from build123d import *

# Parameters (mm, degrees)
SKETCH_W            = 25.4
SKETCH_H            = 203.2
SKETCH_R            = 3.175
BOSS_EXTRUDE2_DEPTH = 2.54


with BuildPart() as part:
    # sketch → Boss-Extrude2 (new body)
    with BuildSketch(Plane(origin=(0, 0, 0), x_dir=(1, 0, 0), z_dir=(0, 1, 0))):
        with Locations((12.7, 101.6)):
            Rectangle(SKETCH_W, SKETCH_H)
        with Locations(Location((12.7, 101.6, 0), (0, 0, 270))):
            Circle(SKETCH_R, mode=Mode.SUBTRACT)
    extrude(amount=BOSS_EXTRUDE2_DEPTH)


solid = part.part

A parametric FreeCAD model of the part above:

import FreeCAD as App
import Part
import Sketcher
from FreeCAD import Vector
Q = App.Units.Quantity

doc = App.newDocument("Part")
body = doc.addObject("PartDesign::Body", "Body")

# Sketch on XZ plane
sketch1 = body.newObject("Sketcher::SketchObject", "Sketch")
sketch1.AttachmentSupport = (doc.getObject("XZ_Plane"), [""])
sketch1.MapMode = "FlatFace"
sketch1.addGeometry([
    Part.LineSegment(Vector(0, -203.2, 0), Vector(0, 0, 0)),  # 0
    Part.LineSegment(Vector(0, 0, 0), Vector(25.4, 0, 0)),  # 1
    Part.LineSegment(Vector(25.4, 0, 0), Vector(25.4, -203.2, 0)),  # 2
    Part.LineSegment(Vector(25.4, -203.2, 0), Vector(0, -203.2, 0)),  # 3
    Part.Circle(Vector(12.7, -101.6, 0), Vector(0, 0, 1), 3.2),  # 4
], False)
sketch1.addConstraint([
    Sketcher.Constraint("Coincident", 0, 2, 1, 1),
    Sketcher.Constraint("Coincident", 1, 2, 2, 1),
    Sketcher.Constraint("Coincident", 2, 2, 3, 1),
    Sketcher.Constraint("Coincident", 3, 2, 0, 1),
    Sketcher.Constraint("Vertical", 0),
    Sketcher.Constraint("Horizontal", 1),
    Sketcher.Constraint("Vertical", 2),
    Sketcher.Constraint("Horizontal", 3),
    Sketcher.Constraint("Coincident", 0, 2, -1, 1),
    Sketcher.Constraint("Diameter", 4, Q("0.25 in")),
    Sketcher.Constraint("DistanceX", 1, 1, 1, 2, Q("1 in")),
    Sketcher.Constraint("DistanceY", 0, 1, 0, 2, Q("8 in")),
    Sketcher.Constraint("DistanceY", 4, 3, -1, 1, Q("4 in")),
    Sketcher.Constraint("DistanceX", -1, 1, 4, 3, Q("0.5 in")),
])
pad1 = body.newObject("PartDesign::Pad", "Pad")
pad1.Profile = sketch1
pad1.Length = Q("0.1 in")
pad1.Reversed = True

doc.recompute()
